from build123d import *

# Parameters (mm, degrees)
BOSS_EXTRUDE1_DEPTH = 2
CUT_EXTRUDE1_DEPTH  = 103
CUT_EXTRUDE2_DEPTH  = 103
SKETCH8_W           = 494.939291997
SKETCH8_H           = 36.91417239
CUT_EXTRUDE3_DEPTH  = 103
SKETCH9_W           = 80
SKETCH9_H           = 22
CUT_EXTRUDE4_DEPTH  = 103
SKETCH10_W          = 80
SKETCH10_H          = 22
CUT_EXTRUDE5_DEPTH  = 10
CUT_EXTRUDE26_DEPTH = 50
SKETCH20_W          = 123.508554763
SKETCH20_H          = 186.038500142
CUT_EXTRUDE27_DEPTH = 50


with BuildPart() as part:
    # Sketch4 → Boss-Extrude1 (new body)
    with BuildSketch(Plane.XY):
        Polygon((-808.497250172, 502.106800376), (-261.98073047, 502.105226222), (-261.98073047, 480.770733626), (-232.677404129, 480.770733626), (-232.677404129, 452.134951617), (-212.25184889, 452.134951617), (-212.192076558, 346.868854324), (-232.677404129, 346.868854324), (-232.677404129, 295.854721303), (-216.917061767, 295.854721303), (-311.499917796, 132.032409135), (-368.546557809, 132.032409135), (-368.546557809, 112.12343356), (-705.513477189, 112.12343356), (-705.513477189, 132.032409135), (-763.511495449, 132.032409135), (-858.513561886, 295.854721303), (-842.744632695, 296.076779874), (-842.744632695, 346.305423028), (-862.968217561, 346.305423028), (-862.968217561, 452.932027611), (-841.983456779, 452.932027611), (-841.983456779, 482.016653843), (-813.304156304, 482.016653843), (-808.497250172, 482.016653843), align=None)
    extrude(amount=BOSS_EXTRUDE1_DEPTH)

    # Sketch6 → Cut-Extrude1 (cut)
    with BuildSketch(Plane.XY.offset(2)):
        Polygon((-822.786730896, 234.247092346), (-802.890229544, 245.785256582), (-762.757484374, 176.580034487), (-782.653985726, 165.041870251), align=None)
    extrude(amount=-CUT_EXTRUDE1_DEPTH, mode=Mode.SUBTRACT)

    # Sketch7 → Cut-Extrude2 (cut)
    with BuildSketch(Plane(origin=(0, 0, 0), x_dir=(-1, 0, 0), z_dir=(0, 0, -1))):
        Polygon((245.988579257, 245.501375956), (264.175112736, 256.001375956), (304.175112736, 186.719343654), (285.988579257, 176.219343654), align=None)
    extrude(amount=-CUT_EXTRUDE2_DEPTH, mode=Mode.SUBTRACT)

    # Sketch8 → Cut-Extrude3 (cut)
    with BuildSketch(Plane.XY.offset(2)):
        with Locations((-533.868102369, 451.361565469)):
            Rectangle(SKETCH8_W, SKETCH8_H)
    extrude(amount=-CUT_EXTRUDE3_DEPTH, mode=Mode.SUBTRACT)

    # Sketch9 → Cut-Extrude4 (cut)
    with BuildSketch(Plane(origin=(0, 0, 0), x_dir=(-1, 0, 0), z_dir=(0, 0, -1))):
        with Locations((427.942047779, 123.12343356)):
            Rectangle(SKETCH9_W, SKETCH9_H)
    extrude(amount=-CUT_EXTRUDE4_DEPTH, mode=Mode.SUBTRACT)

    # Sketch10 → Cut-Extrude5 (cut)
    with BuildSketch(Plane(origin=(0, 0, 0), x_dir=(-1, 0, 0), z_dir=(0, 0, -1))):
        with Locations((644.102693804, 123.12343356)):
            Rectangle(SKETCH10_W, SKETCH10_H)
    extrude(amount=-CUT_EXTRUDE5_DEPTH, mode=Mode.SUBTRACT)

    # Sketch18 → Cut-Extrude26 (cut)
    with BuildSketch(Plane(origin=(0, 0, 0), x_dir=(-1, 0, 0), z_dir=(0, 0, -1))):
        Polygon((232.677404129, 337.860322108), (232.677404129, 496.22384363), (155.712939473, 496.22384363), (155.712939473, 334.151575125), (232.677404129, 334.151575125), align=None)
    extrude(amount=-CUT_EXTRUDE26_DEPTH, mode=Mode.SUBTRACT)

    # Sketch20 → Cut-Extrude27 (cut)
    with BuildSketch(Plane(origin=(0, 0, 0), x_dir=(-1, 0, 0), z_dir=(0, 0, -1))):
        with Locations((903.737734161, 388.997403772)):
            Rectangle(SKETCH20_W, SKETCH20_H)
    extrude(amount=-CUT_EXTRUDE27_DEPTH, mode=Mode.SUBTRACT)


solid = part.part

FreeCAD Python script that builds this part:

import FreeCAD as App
import Part
import Sketcher

V = App.Vector
Q = App.Units.Quantity


def add_polygon(sketch, points):
    """Adds a closed chain of lines whose ends are joined by coincident constraints."""
    first, n = sketch.GeometryCount, len(points)
    for a, b in zip(points, points[1:] + points[:1]):
        sketch.addGeometry(Part.LineSegment(App.Vector(*a, 0), App.Vector(*b, 0)), False)
    for i in range(n):
        sketch.addConstraint(Sketcher.Constraint("Coincident", first + i, 2, first + (i + 1) % n, 1))

doc = App.newDocument("Part")
body = doc.addObject("PartDesign::Body", "Body")

# Sketch on XY plane
sketch1 = body.newObject("Sketcher::SketchObject", "Sketch")
sketch1.AttachmentSupport = (doc.getObject("XY_Plane"), [""])
sketch1.MapMode = "FlatFace"
add_polygon(sketch1, [(-262, 502), (-808, 502), (-808, 482), (-842, 482), (-842, 453), (-863, 453), (-863, 346), (-843, 346), (-843, 296), (-859, 296), (-764, 132), (-706, 132), (-706, 112), (-369, 112), (-369, 132), (-311, 132), (-217, 296), (-233, 296), (-233, 347), (-212, 347), (-212, 452), (-233, 452), (-233, 481), (-262, 481)])  # lines 0-23
sketch1.addConstraint([
    Sketcher.Constraint("Vertical", 1),
    Sketcher.Constraint("Horizontal", 2),
    Sketcher.Constraint("Vertical", 3),
    Sketcher.Constraint("Horizontal", 4),
    Sketcher.Constraint("Vertical", 5),
    Sketcher.Constraint("Horizontal", 6),
    Sketcher.Constraint("Vertical", 7),
    Sketcher.Constraint("Horizontal", 10),
    Sketcher.Constraint("Vertical", 11),
    Sketcher.Constraint("Horizontal", 12),
    Sketcher.Constraint("Vertical", 13),
    Sketcher.Constraint("Horizontal", 14),
    Sketcher.Constraint("Horizontal", 16),
    Sketcher.Constraint("Vertical", 17),
    Sketcher.Constraint("Horizontal", 18),
    Sketcher.Constraint("Horizontal", 20),
    Sketcher.Constraint("Vertical", 21),
    Sketcher.Constraint("Horizontal", 22),
    Sketcher.Constraint("Vertical", 23),
    Sketcher.Constraint("Horizontal", 10, 2, 13, 2),
    Sketcher.Constraint("Horizontal", 8, 2, 15, 2),
    Sketcher.Constraint("Vertical", 17, 2, 20, 2),
    Sketcher.Constraint("Angle", 15, Q("60 deg")),
    Sketcher.Constraint("DistanceX", 4, 2, 4, 1, 20.984761),
    Sketcher.Constraint("DistanceX", 10, 1, 10, 2, 57.998018),
    Sketcher.Constraint("DistanceX", 12, 1, 12, 2, 336.966919),
    Sketcher.Constraint("DistanceX", 14, 1, 14, 2, 57.04664),
    Sketcher.Constraint("DistanceY", -1, 1, 0, 2, 502.1068),
    Sketcher.Constraint("DistanceY", 8, 2, 5, 2, 50.450702),
    Sketcher.Constraint("Distance", 0, 546.51652),
    Sketcher.Constraint("DistanceX", 2, 2, 2, 1, 33.486207),
    Sketcher.Constraint("DistanceX", 6, 1, 6, 2, 20.223585),
    Sketcher.Constraint("DistanceX", 16, 2, 16, 1, 15.760342),
    Sketcher.Constraint("DistanceX", 18, 1, 18, 2, 20.485328),
    Sketcher.Constraint("DistanceX", 20, 2, 20, 1, 20.425555),
    Sketcher.Constraint("DistanceX", 22, 2, 22, 1, 29.303326),
    Sketcher.Constraint("DistanceY", 1, 2, 1, 1, 20.090147),
    Sketcher.Constraint("DistanceY", 3, 2, 3, 1, 29.084626),
    Sketcher.Constraint("DistanceY", 5, 2, 5, 1, 106.626605),
    Sketcher.Constraint("DistanceY", 7, 2, 7, 1, 50.228643),
    Sketcher.Constraint("DistanceY", 11, 2, 11, 1, 19.908976),
    Sketcher.Constraint("DistanceY", 17, 1, 17, 2, 51.014133),
    Sketcher.Constraint("DistanceY", 21, 1, 21, 2, 28.635782),
    Sketcher.Constraint("DistanceY", 23, 1, 23, 2, 21.334493),
    Sketcher.Constraint("DistanceX", 0, 2, -1, 1, 808.49725),
    Sketcher.Constraint("DistanceX", 8, 2, -1, 1, 858.513562),
    Sketcher.Constraint("DistanceY", -1, 1, 9, 2, 132.032409),
    Sketcher.Constraint("DistanceY", -1, 1, 19, 2, 452.134952),
])
pad1 = body.newObject("PartDesign::Pad", "Pad")
pad1.Profile = sketch1
pad1.Length = 2

# Sketch on XY plane
sketch2 = body.newObject("Sketcher::SketchObject", "Sketch001")
sketch2.AttachmentSupport = (doc.getObject("XY_Plane"), [""])
sketch2.MapMode = "FlatFace"
sketch2.AttachmentOffset = App.Placement(V(0, 0, 2), App.Rotation())
add_polygon(sketch2, [(-803, 246), (-823, 234), (-783, 165), (-763, 177)])  # lines 0-3
sketch2.addConstraint([
    Sketcher.Constraint("Perpendicular", 0, 1),
    Sketcher.Constraint("Perpendicular", 1, 2),
    Sketcher.Constraint("Perpendicular", 2, 3),
    Sketcher.Constraint("Distance", 0, 23.0),
    Sketcher.Constraint("Distance", 1, 80.0),
    Sketcher.Constraint("DistanceX", 1, 2, 2, 2, 19.896501),
    Sketcher.Constraint("DistanceX", 0, 2, -1, 1, 822.786731),
    Sketcher.Constraint("DistanceY", -1, 1, 1, 2, 165.04187),
])
pocket1 = body.newObject("PartDesign::Pocket", "Pocket")
pocket1.Profile = sketch2
pocket1.Length = 103

# Sketch on XY plane
sketch3 = body.newObject("Sketcher::SketchObject", "Sketch002")
sketch3.AttachmentSupport = (doc.getObject("XY_Plane"), [""])
sketch3.MapMode = "FlatFace"
add_polygon(sketch3, [(-264, 256), (-246, 246), (-286, 176), (-304, 187)])  # lines 0-3
sketch3.addConstraint([
    Sketcher.Constraint("Perpendicular", 0, 1),
    Sketcher.Constraint("Perpendicular", 1, 2),
    Sketcher.Constraint("Perpendicular", 2, 3),
    Sketcher.Constraint("Angle", 0, Q("-30 deg")),
    Sketcher.Constraint("Distance", 0, 21.0),
    Sketcher.Constraint("Distance", 1, 80.0),
    Sketcher.Constraint("DistanceX", 0, 2, -1, 1, 245.988579),
    Sketcher.Constraint("DistanceY", -1, 1, 0, 2, 245.501376),
])
pocket2 = body.newObject("PartDesign::Pocket", "Pocket001")
pocket2.Profile = sketch3
pocket2.Length = 103
pocket2.Reversed = True

# Sketch on XY plane
sketch4 = body.newObject("Sketcher::SketchObject", "Sketch003")
sketch4.AttachmentSupport = (doc.getObject("XY_Plane"), [""])
sketch4.MapMode = "FlatFace"
sketch4.AttachmentOffset = App.Placement(V(0, 0, 2), App.Rotation())
add_polygon(sketch4, [(-781, 470), (-781, 433), (-286, 433), (-286, 470)])  # lines 0-3
sketch4.addConstraint([
    Sketcher.Constraint("Vertical", 0),
    Sketcher.Constraint("Horizontal", 1),
    Sketcher.Constraint("Vertical", 2),
    Sketcher.Constraint("Horizontal", 3),
    Sketcher.Constraint("DistanceX", 1, 1, 1, 2, 494.939292),
    Sketcher.Constraint("DistanceY", 0, 2, 0, 1, 36.914172),
    Sketcher.Constraint("DistanceX", 0, 2, -1, 1, 781.337748),
    Sketcher.Constraint("DistanceY", -1, 1, 0, 2, 432.904479),
])
pocket3 = body.newObject("PartDesign::Pocket", "Pocket002")
pocket3.Profile = sketch4
pocket3.Length = 103

# Sketch on XY plane
sketch5 = body.newObject("Sketcher::SketchObject", "Sketch004")
sketch5.AttachmentSupport = (doc.getObject("XY_Plane"), [""])
sketch5.MapMode = "FlatFace"
add_polygon(sketch5, [(-388, 134), (-388, 112), (-468, 112), (-468, 134)])  # lines 0-3
sketch5.addConstraint([
    Sketcher.Constraint("Vertical", 0),
    Sketcher.Constraint("Horizontal", 1),
    Sketcher.Constraint("Vertical", 2),
    Sketcher.Constraint("Horizontal", 3),
    Sketcher.Constraint("DistanceX", 1, 2, 1, 1, 80.0),
    Sketcher.Constraint("DistanceY", 0, 2, 0, 1, 22.0),
    Sketcher.Constraint("DistanceX", 0, 2, -1, 1, 387.942048),
    Sketcher.Constraint("DistanceY", -1, 1, 0, 2, 112.123434),
])
pocket4 = body.newObject("PartDesign::Pocket", "Pocket003")
pocket4.Profile = sketch5
pocket4.Length = 103
pocket4.Reversed = True

# Sketch on XY plane
sketch6 = body.newObject("Sketcher::SketchObject", "Sketch005")
sketch6.AttachmentSupport = (doc.getObject("XY_Plane"), [""])
sketch6.MapMode = "FlatFace"
add_polygon(sketch6, [(-604, 134), (-604, 112), (-684, 112), (-684, 134)])  # lines 0-3
sketch6.addConstraint([
    Sketcher.Constraint("Vertical", 0),
    Sketcher.Constraint("Horizontal", 1),
    Sketcher.Constraint("Vertical", 2),
    Sketcher.Constraint("Horizontal", 3),
    Sketcher.Constraint("DistanceX", 1, 2, 1, 1, 80.0),
    Sketcher.Constraint("DistanceY", 0, 2, 0, 1, 22.0),
    Sketcher.Constraint("DistanceX", 0, 2, -1, 1, 604.102694),
    Sketcher.Constraint("DistanceY", -1, 1, 0, 2, 112.123434),
])
pocket5 = body.newObject("PartDesign::Pocket", "Pocket004")
pocket5.Profile = sketch6
pocket5.Length = 10
pocket5.Reversed = True

# Sketch on XY plane
sketch7 = body.newObject("Sketcher::SketchObject", "Sketch006")
sketch7.AttachmentSupport = (doc.getObject("XY_Plane"), [""])
sketch7.MapMode = "FlatFace"
add_polygon(sketch7, [(-233, 496), (-156, 496), (-156, 334), (-233, 334)])  # lines 0-3
sketch7.addConstraint([
    Sketcher.Constraint("Horizontal", 0),
    Sketcher.Constraint("Vertical", 1),
    Sketcher.Constraint("Horizontal", 2),
    Sketcher.Constraint("Vertical", 3),
    Sketcher.Constraint("DistanceY", 1, 2, 1, 1, 162.072269),
    Sketcher.Constraint("DistanceX", 0, 1, 0, 2, 76.964465),
    Sketcher.Constraint("DistanceX", 0, 2, -1, 1, 155.712939),
    Sketcher.Constraint("DistanceY", -1, 1, 0, 2, 496.223844),
])
pocket6 = body.newObject("PartDesign::Pocket", "Pocket005")
pocket6.Profile = sketch7
pocket6.Length = 50
pocket6.Reversed = True

# Sketch on XY plane
sketch8 = body.newObject("Sketcher::SketchObject", "Sketch007")
sketch8.AttachmentSupport = (doc.getObject("XY_Plane"), [""])
sketch8.MapMode = "FlatFace"
add_polygon(sketch8, [(-842, 482), (-842, 296), (-965, 296), (-965, 482)])  # lines 0-3
sketch8.addConstraint([
    Sketcher.Constraint("Vertical", 0),
    Sketcher.Constraint("Horizontal", 1),
    Sketcher.Constraint("Vertical", 2),
    Sketcher.Constraint("Horizontal", 3),
    Sketcher.Constraint("DistanceY", 0, 2, 0, 1, 186.0385),
    Sketcher.Constraint("DistanceX", 1, 2, 1, 1, 123.508555),
    Sketcher.Constraint("DistanceX", 1, 2, -1, 1, 965.492012),
    Sketcher.Constraint("DistanceY", -1, 1, 0, 2, 295.978154),
])
pocket7 = body.newObject("PartDesign::Pocket", "Pocket006")
pocket7.Profile = sketch8
pocket7.Length = 50
pocket7.Reversed = True

doc.recompute()
